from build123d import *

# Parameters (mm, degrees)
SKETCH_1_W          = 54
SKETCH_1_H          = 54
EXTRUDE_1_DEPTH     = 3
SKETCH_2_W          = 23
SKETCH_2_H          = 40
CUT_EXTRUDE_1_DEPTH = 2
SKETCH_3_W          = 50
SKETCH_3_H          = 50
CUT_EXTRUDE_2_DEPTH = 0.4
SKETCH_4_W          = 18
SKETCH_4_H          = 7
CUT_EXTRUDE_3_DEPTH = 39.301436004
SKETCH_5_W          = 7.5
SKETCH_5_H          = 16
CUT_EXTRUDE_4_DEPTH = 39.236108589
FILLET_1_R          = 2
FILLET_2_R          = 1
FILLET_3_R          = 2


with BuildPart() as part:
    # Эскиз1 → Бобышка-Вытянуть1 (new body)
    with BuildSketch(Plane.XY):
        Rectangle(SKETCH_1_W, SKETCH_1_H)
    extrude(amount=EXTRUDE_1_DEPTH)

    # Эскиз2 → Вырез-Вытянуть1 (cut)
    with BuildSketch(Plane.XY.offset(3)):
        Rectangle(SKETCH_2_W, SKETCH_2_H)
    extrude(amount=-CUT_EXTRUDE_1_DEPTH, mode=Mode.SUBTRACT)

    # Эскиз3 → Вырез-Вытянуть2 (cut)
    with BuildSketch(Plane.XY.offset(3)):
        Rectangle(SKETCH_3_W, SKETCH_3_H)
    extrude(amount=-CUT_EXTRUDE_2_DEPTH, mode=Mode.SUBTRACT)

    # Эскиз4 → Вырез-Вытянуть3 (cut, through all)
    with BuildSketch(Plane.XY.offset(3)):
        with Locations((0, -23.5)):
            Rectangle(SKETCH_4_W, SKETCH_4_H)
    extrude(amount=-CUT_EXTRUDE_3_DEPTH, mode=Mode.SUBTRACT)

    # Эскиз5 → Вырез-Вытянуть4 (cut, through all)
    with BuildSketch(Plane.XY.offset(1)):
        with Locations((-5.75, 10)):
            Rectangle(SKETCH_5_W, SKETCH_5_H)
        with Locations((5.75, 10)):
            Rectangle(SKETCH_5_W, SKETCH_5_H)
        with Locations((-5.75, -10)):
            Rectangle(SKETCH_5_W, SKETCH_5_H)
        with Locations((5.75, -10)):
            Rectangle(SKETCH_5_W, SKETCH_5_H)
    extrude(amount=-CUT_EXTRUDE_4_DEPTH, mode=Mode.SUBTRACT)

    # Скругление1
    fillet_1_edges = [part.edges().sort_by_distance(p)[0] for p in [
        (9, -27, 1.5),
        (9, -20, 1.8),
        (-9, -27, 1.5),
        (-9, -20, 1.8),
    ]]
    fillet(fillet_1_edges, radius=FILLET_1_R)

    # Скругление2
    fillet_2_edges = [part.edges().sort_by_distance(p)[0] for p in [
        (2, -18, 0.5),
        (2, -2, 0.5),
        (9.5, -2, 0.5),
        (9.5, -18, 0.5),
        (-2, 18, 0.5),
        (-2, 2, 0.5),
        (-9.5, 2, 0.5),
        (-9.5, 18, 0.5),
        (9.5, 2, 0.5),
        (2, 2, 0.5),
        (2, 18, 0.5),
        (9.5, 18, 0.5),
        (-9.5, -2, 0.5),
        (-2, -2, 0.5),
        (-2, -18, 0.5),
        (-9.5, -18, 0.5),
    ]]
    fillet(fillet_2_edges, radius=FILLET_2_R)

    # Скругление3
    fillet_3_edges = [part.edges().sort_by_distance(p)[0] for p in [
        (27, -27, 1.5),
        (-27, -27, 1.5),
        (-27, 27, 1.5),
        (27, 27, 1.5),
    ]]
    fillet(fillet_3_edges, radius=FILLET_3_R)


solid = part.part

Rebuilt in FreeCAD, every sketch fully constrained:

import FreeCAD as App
import Part
import Sketcher
from FreeCAD import Vector


def edges_at(feature, points):
    """Names of the edges that pass closest to the given points."""
    edges = feature.Shape.Edges
    near = lambda p: min(range(len(edges)), key=lambda i: edges[i].distToShape(Part.Vertex(*p))[0])
    return sorted({f"Edge{near(p) + 1}" for p in points})

doc = App.newDocument("Part")
params = doc.addObject("Spreadsheet::Sheet", "Params")
for row, (alias, value) in enumerate([
    ("sketch1_width", "54 mm"),
    ("pad1_length", "3 mm"),
    ("sketch2_width", "23 mm"),
    ("sketch2_height", "40 mm"),
    ("pocket1_length", "2 mm"),
    ("sketch3_width", "50 mm"),
    ("pocket2_length", "0.4 mm"),
    ("sketch4_width", "18 mm"),
    ("sketch4_height", "7 mm"),
    ("sketch5_height", "16 mm"),
    ("sketch5_width", "7.5 mm"),
    ("fillet_radius", "2 mm"),
    ("fillet2_radius", "1 mm"),
    ("fillet3_radius", "2 mm"),
], start=1):
    params.set(f"A{row}", alias)
    params.set(f"B{row}", "=" + value)
    params.setAlias(f"B{row}", alias)

body = doc.addObject("PartDesign::Body", "Body")

# Sketch on XY plane
sketch1 = body.newObject("Sketcher::SketchObject", "Sketch")
sketch1.AttachmentSupport = (doc.getObject("XY_Plane"), [""])
sketch1.MapMode = "FlatFace"
sketch1.addGeometry(Part.LineSegment(Vector(-27, 27, 0), Vector(-27, -27, 0)), False)
sketch1.addGeometry(Part.LineSegment(Vector(-27, -27, 0), Vector(27, -27, 0)), False)
sketch1.addGeometry(Part.LineSegment(Vector(27, -27, 0), Vector(27, 27, 0)), False)
sketch1.addGeometry(Part.LineSegment(Vector(27, 27, 0), Vector(-27, 27, 0)), False)
sketch1.addConstraint(Sketcher.Constraint("Coincident", 0, 2, 1, 1))
sketch1.addConstraint(Sketcher.Constraint("Coincident", 1, 2, 2, 1))
sketch1.addConstraint(Sketcher.Constraint("Coincident", 2, 2, 3, 1))
sketch1.addConstraint(Sketcher.Constraint("Coincident", 3, 2, 0, 1))
sketch1.addConstraint(Sketcher.Constraint("Vertical", 0))
sketch1.addConstraint(Sketcher.Constraint("Horizontal", 1))
sketch1.addConstraint(Sketcher.Constraint("Vertical", 2))
sketch1.addConstraint(Sketcher.Constraint("Horizontal", 3))
sketch1.addConstraint(Sketcher.Constraint("Symmetric", 0, 2, 2, 2, -1, 1))
sketch1.addConstraint(Sketcher.Constraint("Equal", 3, 0))
sketch1.addConstraint(Sketcher.Constraint("DistanceX", 1, 1, 1, 2, 54.0))
sketch1.setExpression("Constraints[10]", "Params.sketch1_width")
pad1 = body.newObject("PartDesign::Pad", "Pad")
pad1.Profile = sketch1
pad1.setExpression("Length", "Params.pad1_length")

# Sketch on XY plane
sketch2 = body.newObject("Sketcher::SketchObject", "Sketch001")
sketch2.AttachmentSupport = (doc.getObject("XY_Plane"), [""])
sketch2.MapMode = "FlatFace"
sketch2.AttachmentOffset = App.Placement(Vector(0, 0, 3), App.Rotation())
sketch2.addGeometry(Part.LineSegment(Vector(-12, 20, 0), Vector(-12, -20, 0)), False)
sketch2.addGeometry(Part.LineSegment(Vector(-12, -20, 0), Vector(12, -20, 0)), False)
sketch2.addGeometry(Part.LineSegment(Vector(12, -20, 0), Vector(12, 20, 0)), False)
sketch2.addGeometry(Part.LineSegment(Vector(12, 20, 0), Vector(-12, 20, 0)), False)
sketch2.addConstraint(Sketcher.Constraint("Coincident", 0, 2, 1, 1))
sketch2.addConstraint(Sketcher.Constraint("Coincident", 1, 2, 2, 1))
sketch2.addConstraint(Sketcher.Constraint("Coincident", 2, 2, 3, 1))
sketch2.addConstraint(Sketcher.Constraint("Coincident", 3, 2, 0, 1))
sketch2.addConstraint(Sketcher.Constraint("Vertical", 0))
sketch2.addConstraint(Sketcher.Constraint("Horizontal", 1))
sketch2.addConstraint(Sketcher.Constraint("Vertical", 2))
sketch2.addConstraint(Sketcher.Constraint("Horizontal", 3))
sketch2.addConstraint(Sketcher.Constraint("Symmetric", 0, 2, 2, 2, -1, 1))
sketch2.addConstraint(Sketcher.Constraint("DistanceX", 1, 1, 1, 2, 23.0))
sketch2.addConstraint(Sketcher.Constraint("DistanceY", 0, 2, 0, 1, 40.0))
sketch2.setExpression("Constraints[9]", "Params.sketch2_width")
sketch2.setExpression("Constraints[10]", "Params.sketch2_height")
pocket1 = body.newObject("PartDesign::Pocket", "Pocket")
pocket1.Profile = sketch2
pocket1.setExpression("Length", "Params.pocket1_length")

# Sketch on XY plane
sketch3 = body.newObject("Sketcher::SketchObject", "Sketch002")
sketch3.AttachmentSupport = (doc.getObject("XY_Plane"), [""])
sketch3.MapMode = "FlatFace"
sketch3.AttachmentOffset = App.Placement(Vector(0, 0, 3), App.Rotation())
sketch3.addGeometry(Part.LineSegment(Vector(-25, 25, 0), Vector(-25, -25, 0)), False)
sketch3.addGeometry(Part.LineSegment(Vector(-25, -25, 0), Vector(25, -25, 0)), False)
sketch3.addGeometry(Part.LineSegment(Vector(25, -25, 0), Vector(25, 25, 0)), False)
sketch3.addGeometry(Part.LineSegment(Vector(25, 25, 0), Vector(-25, 25, 0)), False)
sketch3.addConstraint(Sketcher.Constraint("Coincident", 0, 2, 1, 1))
sketch3.addConstraint(Sketcher.Constraint("Coincident", 1, 2, 2, 1))
sketch3.addConstraint(Sketcher.Constraint("Coincident", 2, 2, 3, 1))
sketch3.addConstraint(Sketcher.Constraint("Coincident", 3, 2, 0, 1))
sketch3.addConstraint(Sketcher.Constraint("Vertical", 0))
sketch3.addConstraint(Sketcher.Constraint("Horizontal", 1))
sketch3.addConstraint(Sketcher.Constraint("Vertical", 2))
sketch3.addConstraint(Sketcher.Constraint("Horizontal", 3))
sketch3.addConstraint(Sketcher.Constraint("Symmetric", 0, 2, 2, 2, -1, 1))
sketch3.addConstraint(Sketcher.Constraint("Equal", 3, 0))
sketch3.addConstraint(Sketcher.Constraint("DistanceX", 1, 1, 1, 2, 50.0))
sketch3.setExpression("Constraints[10]", "Params.sketch3_width")
pocket2 = body.newObject("PartDesign::Pocket", "Pocket001")
pocket2.Profile = sketch3
pocket2.setExpression("Length", "Params.pocket2_length")

# Sketch on XY plane
sketch4 = body.newObject("Sketcher::SketchObject", "Sketch003")
sketch4.AttachmentSupport = (doc.getObject("XY_Plane"), [""])
sketch4.MapMode = "FlatFace"
sketch4.AttachmentOffset = App.Placement(Vector(0, 0, 3), App.Rotation())
sketch4.addGeometry(Part.LineSegment(Vector(-9, -20, 0), Vector(-9, -27, 0)), False)
sketch4.addGeometry(Part.LineSegment(Vector(-9, -27, 0), Vector(9, -27, 0)), False)
sketch4.addGeometry(Part.LineSegment(Vector(9, -27, 0), Vector(9, -20, 0)), False)
sketch4.addGeometry(Part.LineSegment(Vector(9, -20, 0), Vector(-9, -20, 0)), False)
sketch4.addConstraint(Sketcher.Constraint("Coincident", 0, 2, 1, 1))
sketch4.addConstraint(Sketcher.Constraint("Coincident", 1, 2, 2, 1))
sketch4.addConstraint(Sketcher.Constraint("Coincident", 2, 2, 3, 1))
sketch4.addConstraint(Sketcher.Constraint("Coincident", 3, 2, 0, 1))
sketch4.addConstraint(Sketcher.Constraint("Vertical", 0))
sketch4.addConstraint(Sketcher.Constraint("Horizontal", 1))
sketch4.addConstraint(Sketcher.Constraint("Vertical", 2))
sketch4.addConstraint(Sketcher.Constraint("Horizontal", 3))
sketch4.addConstraint(Sketcher.Constraint("DistanceX", 1, 1, 1, 2, 18.0))
sketch4.addConstraint(Sketcher.Constraint("DistanceY", 0, 2, 0, 1, 7.0))
sketch4.addConstraint(Sketcher.Constraint("DistanceX", 0, 2, -1, 1, 9.0))
sketch4.addConstraint(Sketcher.Constraint("DistanceY", 0, 2, -1, 1, 27.0))
sketch4.setExpression("Constraints[8]", "Params.sketch4_width")
sketch4.setExpression("Constraints[9]", "Params.sketch4_height")
pocket3 = body.newObject("PartDesign::Pocket", "Pocket002")
pocket3.Profile = sketch4
pocket3.Type = "ThroughAll"

# Sketch on XY plane
sketch5 = body.newObject("Sketcher::SketchObject", "Sketch004")
sketch5.AttachmentSupport = (doc.getObject("XY_Plane"), [""])
sketch5.MapMode = "FlatFace"
sketch5.AttachmentOffset = App.Placement(Vector(0, 0, 1), App.Rotation())
sketch5.addGeometry(Part.LineSegment(Vector(-10, 18, 0), Vector(-10, 2, 0)), False)
sketch5.addGeometry(Part.LineSegment(Vector(-10, 2, 0), Vector(-2, 2, 0)), False)
sketch5.addGeometry(Part.LineSegment(Vector(-2, 2, 0), Vector(-2, 18, 0)), False)
sketch5.addGeometry(Part.LineSegment(Vector(-2, 18, 0), Vector(-10, 18, 0)), False)
sketch5.addGeometry(Part.LineSegment(Vector(2, 18, 0), Vector(2, 2, 0)), False)
sketch5.addGeometry(Part.LineSegment(Vector(2, 2, 0), Vector(10, 2, 0)), False)
sketch5.addGeometry(Part.LineSegment(Vector(10, 2, 0), Vector(10, 18, 0)), False)
sketch5.addGeometry(Part.LineSegment(Vector(10, 18, 0), Vector(2, 18, 0)), False)
sketch5.addGeometry(Part.LineSegment(Vector(-10, -2, 0), Vector(-10, -18, 0)), False)
sketch5.addGeometry(Part.LineSegment(Vector(-10, -18, 0), Vector(-2, -18, 0)), False)
sketch5.addGeometry(Part.LineSegment(Vector(-2, -18, 0), Vector(-2, -2, 0)), False)
sketch5.addGeometry(Part.LineSegment(Vector(-2, -2, 0), Vector(-10, -2, 0)), False)
sketch5.addGeometry(Part.LineSegment(Vector(2, -2, 0), Vector(2, -18, 0)), False)
sketch5.addGeometry(Part.LineSegment(Vector(2, -18, 0), Vector(10, -18, 0)), False)
sketch5.addGeometry(Part.LineSegment(Vector(10, -18, 0), Vector(10, -2, 0)), False)
sketch5.addGeometry(Part.LineSegment(Vector(10, -2, 0), Vector(2, -2, 0)), False)
sketch5.addConstraint(Sketcher.Constraint("Coincident", 0, 2, 1, 1))
sketch5.addConstraint(Sketcher.Constraint("Coincident", 1, 2, 2, 1))
sketch5.addConstraint(Sketcher.Constraint("Coincident", 2, 2, 3, 1))
sketch5.addConstraint(Sketcher.Constraint("Coincident", 3, 2, 0, 1))
sketch5.addConstraint(Sketcher.Constraint("Coincident", 4, 2, 5, 1))
sketch5.addConstraint(Sketcher.Constraint("Coincident", 5, 2, 6, 1))
sketch5.addConstraint(Sketcher.Constraint("Coincident", 6, 2, 7, 1))
sketch5.addConstraint(Sketcher.Constraint("Coincident", 7, 2, 4, 1))
sketch5.addConstraint(Sketcher.Constraint("Coincident", 8, 2, 9, 1))
sketch5.addConstraint(Sketcher.Constraint("Coincident", 9, 2, 10, 1))
sketch5.addConstraint(Sketcher.Constraint("Coincident", 10, 2, 11, 1))
sketch5.addConstraint(Sketcher.Constraint("Coincident", 11, 2, 8, 1))
sketch5.addConstraint(Sketcher.Constraint("Coincident", 12, 2, 13, 1))
sketch5.addConstraint(Sketcher.Constraint("Coincident", 13, 2, 14, 1))
sketch5.addConstraint(Sketcher.Constraint("Coincident", 14, 2, 15, 1))
sketch5.addConstraint(Sketcher.Constraint("Coincident", 15, 2, 12, 1))
sketch5.addConstraint(Sketcher.Constraint("Vertical", 0))
sketch5.addConstraint(Sketcher.Constraint("Horizontal", 1))
sketch5.addConstraint(Sketcher.Constraint("Vertical", 2))
sketch5.addConstraint(Sketcher.Constraint("Horizontal", 3))
sketch5.addConstraint(Sketcher.Constraint("Vertical", 4))
sketch5.addConstraint(Sketcher.Constraint("Horizontal", 5))
sketch5.addConstraint(Sketcher.Constraint("Vertical", 6))
sketch5.addConstraint(Sketcher.Constraint("Horizontal", 7))
sketch5.addConstraint(Sketcher.Constraint("Vertical", 8))
sketch5.addConstraint(Sketcher.Constraint("Horizontal", 9))
sketch5.addConstraint(Sketcher.Constraint("Vertical", 10))
sketch5.addConstraint(Sketcher.Constraint("Horizontal", 11))
sketch5.addConstraint(Sketcher.Constraint("Vertical", 12))
sketch5.addConstraint(Sketcher.Constraint("Horizontal", 13))
sketch5.addConstraint(Sketcher.Constraint("Vertical", 14))
sketch5.addConstraint(Sketcher.Constraint("Horizontal", 15))
sketch5.addConstraint(Sketcher.Constraint("Symmetric", 6, 2, 8, 2, -1, 1))
sketch5.addConstraint(Sketcher.Constraint("Symmetric", 4, 2, 10, 2, -1, 1))
sketch5.addConstraint(Sketcher.Constraint("Symmetric", 2, 2, 12, 2, -1, 1))
sketch5.addConstraint(Sketcher.Constraint("Symmetric", 0, 2, 14, 2, -1, 1))
sketch5.addConstraint(Sketcher.Constraint("Symmetric", 1, 2, 4, 2, -2))
sketch5.addConstraint(Sketcher.Constraint("Symmetric", 3, 2, 6, 2, -2))
sketch5.addConstraint(Sketcher.Constraint("DistanceY", 0, 2, 0, 1, 16.0))
sketch5.addConstraint(Sketcher.Constraint("DistanceX", 1, 1, 1, 2, 7.5))
sketch5.addConstraint(Sketcher.Constraint("DistanceY", -1, 1, 0, 2, 2.0))
sketch5.addConstraint(Sketcher.Constraint("DistanceX", 1, 2, -1, 1, 2.0))
sketch5.setExpression("Constraints[38]", "Params.sketch5_height")
sketch5.setExpression("Constraints[39]", "Params.sketch5_width")
pocket4 = body.newObject("PartDesign::Pocket", "Pocket003")
pocket4.Profile = sketch5
pocket4.Type = "ThroughAll"
doc.recompute()

fillet = body.newObject("PartDesign::Fillet", "Fillet")
fillet.Base = (pocket4, edges_at(pocket4, [
    (9, -27, 1.5),
    (9, -20, 1.8),
    (-9, -27, 1.5),
    (-9, -20, 1.8),
]))
fillet.setExpression("Radius", "Params.fillet_radius")
doc.recompute()

fillet2 = body.newObject("PartDesign::Fillet", "Fillet001")
fillet2.Base = (fillet, edges_at(fillet, [
    (2, -18, 0.5),
    (2, -2, 0.5),
    (9.5, -2, 0.5),
    (9.5, -18, 0.5),
    (-2, 18, 0.5),
    (-2, 2, 0.5),
    (-9.5, 2, 0.5),
    (-9.5, 18, 0.5),
    (9.5, 2, 0.5),
    (2, 2, 0.5),
    (2, 18, 0.5),
    (9.5, 18, 0.5),
    (-9.5, -2, 0.5),
    (-2, -2, 0.5),
    (-2, -18, 0.5),
    (-9.5, -18, 0.5),
]))
fillet2.setExpression("Radius", "Params.fillet2_radius")
doc.recompute()

fillet3 = body.newObject("PartDesign::Fillet", "Fillet002")
fillet3.Base = (fillet2, edges_at(fillet2, [
    (27, -27, 1.5),
    (-27, -27, 1.5),
    (-27, 27, 1.5),
    (27, 27, 1.5),
]))
fillet3.setExpression("Radius", "Params.fillet3_radius")

doc.recompute()
